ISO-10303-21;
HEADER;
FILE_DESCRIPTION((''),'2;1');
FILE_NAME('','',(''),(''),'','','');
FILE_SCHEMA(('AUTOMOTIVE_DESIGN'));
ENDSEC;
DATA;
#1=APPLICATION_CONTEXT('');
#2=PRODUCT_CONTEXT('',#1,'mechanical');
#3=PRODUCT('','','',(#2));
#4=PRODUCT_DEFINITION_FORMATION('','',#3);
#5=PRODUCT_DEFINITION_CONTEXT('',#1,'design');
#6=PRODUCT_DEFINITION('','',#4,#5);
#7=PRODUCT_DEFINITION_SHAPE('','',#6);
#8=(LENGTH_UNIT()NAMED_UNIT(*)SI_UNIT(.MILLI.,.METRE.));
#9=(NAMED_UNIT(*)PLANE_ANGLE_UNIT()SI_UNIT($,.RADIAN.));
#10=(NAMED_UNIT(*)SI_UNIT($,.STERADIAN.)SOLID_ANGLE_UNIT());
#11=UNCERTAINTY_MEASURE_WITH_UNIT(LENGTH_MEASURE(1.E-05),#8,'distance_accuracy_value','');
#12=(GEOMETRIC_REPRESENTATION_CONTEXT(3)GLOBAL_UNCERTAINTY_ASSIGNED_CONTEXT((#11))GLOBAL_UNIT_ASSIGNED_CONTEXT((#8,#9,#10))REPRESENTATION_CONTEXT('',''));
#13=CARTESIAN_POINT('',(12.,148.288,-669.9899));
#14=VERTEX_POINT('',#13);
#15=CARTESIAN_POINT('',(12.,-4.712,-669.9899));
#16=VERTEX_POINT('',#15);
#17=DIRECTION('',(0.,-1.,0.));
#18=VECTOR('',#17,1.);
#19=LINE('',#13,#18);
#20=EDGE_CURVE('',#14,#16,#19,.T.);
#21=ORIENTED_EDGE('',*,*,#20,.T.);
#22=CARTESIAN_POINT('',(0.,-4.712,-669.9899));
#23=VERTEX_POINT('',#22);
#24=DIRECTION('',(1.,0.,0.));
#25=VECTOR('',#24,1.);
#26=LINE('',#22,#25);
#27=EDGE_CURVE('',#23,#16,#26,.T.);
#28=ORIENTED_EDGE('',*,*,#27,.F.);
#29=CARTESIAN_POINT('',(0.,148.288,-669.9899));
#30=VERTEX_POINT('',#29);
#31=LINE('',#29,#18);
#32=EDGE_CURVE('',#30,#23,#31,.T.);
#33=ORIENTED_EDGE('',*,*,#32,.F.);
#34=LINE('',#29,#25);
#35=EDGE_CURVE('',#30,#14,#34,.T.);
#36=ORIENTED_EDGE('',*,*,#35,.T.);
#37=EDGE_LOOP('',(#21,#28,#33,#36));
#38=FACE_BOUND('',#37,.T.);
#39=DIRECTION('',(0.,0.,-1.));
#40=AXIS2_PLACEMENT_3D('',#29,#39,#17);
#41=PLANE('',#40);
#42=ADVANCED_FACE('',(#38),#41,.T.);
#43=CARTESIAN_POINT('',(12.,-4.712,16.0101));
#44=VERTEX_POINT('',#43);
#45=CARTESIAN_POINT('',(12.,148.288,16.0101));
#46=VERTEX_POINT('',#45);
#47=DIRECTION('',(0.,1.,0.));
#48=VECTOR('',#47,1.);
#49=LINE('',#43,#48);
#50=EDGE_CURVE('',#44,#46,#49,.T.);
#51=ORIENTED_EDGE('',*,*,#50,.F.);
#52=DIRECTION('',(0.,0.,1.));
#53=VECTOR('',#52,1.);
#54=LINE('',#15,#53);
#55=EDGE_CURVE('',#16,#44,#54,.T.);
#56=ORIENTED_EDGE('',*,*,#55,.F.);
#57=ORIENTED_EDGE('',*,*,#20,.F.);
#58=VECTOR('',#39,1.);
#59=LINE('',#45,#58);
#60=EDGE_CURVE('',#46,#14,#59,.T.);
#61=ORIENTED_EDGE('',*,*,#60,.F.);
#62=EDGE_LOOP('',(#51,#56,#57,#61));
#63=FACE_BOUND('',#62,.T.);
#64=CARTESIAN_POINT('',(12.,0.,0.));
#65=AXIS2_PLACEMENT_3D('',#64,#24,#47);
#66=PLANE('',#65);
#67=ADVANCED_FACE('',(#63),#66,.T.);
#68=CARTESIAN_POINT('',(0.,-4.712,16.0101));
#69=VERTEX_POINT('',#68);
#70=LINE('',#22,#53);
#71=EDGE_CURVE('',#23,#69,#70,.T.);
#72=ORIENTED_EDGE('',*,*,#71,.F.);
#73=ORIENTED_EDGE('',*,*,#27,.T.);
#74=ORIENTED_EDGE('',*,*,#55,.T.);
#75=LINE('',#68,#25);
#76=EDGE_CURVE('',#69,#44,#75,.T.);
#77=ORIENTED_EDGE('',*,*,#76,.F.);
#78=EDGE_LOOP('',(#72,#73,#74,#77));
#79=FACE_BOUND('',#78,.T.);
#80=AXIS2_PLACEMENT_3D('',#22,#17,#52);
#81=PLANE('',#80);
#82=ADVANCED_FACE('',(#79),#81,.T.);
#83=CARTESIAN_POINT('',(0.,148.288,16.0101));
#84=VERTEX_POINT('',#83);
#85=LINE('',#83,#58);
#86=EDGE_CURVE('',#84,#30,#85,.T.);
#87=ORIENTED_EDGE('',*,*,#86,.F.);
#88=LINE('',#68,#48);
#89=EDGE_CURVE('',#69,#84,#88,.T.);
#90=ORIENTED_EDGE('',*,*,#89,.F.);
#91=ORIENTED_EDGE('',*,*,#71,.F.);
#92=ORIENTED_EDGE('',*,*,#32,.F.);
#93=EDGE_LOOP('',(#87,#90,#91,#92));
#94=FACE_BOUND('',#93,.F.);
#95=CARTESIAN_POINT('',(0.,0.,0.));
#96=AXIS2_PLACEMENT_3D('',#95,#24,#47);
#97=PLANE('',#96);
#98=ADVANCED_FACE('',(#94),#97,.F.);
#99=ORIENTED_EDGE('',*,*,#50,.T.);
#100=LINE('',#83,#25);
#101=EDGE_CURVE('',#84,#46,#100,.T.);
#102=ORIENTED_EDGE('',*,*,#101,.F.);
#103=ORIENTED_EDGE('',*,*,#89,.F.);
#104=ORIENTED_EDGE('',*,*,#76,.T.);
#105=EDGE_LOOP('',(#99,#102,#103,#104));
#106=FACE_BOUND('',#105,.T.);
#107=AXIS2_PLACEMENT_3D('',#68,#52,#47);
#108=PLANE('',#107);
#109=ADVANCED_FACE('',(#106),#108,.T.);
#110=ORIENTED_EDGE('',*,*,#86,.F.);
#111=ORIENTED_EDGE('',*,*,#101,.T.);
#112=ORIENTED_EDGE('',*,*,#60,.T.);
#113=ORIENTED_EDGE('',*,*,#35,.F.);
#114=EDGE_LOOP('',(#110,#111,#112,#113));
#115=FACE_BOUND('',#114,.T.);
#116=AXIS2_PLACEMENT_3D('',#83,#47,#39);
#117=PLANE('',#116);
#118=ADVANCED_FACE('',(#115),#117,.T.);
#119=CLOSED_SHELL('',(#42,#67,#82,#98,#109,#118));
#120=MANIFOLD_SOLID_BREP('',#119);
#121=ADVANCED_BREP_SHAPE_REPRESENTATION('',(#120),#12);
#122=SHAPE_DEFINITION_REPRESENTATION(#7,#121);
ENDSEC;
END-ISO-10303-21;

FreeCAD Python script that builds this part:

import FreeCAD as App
import Part
import Sketcher
Q = App.Units.Quantity

doc = App.newDocument("Part")
body = doc.addObject("PartDesign::Body", "Body")

sketch1 = body.newObject("Sketcher::SketchObject", "Sketch")
sketch1.AttachmentSupport = (doc.getObject("YZ_Plane"), [""])
sketch1.MapMode = "FlatFace"
sketch1.addGeometry([
    Part.LineSegment(App.Vector(148, 16, 0), App.Vector(-5, 16, 0)),
    Part.LineSegment(App.Vector(-5, 16, 0), App.Vector(-5, -670, 0)),
    Part.LineSegment(App.Vector(-5, -670, 0), App.Vector(148, -670, 0)),
    Part.LineSegment(App.Vector(148, -670, 0), App.Vector(148, 16, 0)),
], False)
sketch1.addConstraint([
    Sketcher.Constraint("Coincident", 0, 2, 1, 1),
    Sketcher.Constraint("Coincident", 1, 2, 2, 1),
    Sketcher.Constraint("Coincident", 2, 2, 3, 1),
    Sketcher.Constraint("Coincident", 3, 2, 0, 1),
    Sketcher.Constraint("Horizontal", 0),
    Sketcher.Constraint("Vertical", 1),
    Sketcher.Constraint("Horizontal", 2),
    Sketcher.Constraint("Vertical", 3),
    Sketcher.Constraint("DistanceX", 0, 2, 0, 1, Q("153 mm")),
    Sketcher.Constraint("DistanceY", 1, 2, 1, 1, Q("686 mm")),
    Sketcher.Constraint("DistanceY", -1, 1, 0, 2, Q("16.01 mm")),
    Sketcher.Constraint("DistanceX", 0, 2, -1, 1, Q("4.712 mm")),
])
pad1 = body.newObject("PartDesign::Pad", "Pad")
pad1.Profile = sketch1
pad1.Length = 12

doc.recompute()
